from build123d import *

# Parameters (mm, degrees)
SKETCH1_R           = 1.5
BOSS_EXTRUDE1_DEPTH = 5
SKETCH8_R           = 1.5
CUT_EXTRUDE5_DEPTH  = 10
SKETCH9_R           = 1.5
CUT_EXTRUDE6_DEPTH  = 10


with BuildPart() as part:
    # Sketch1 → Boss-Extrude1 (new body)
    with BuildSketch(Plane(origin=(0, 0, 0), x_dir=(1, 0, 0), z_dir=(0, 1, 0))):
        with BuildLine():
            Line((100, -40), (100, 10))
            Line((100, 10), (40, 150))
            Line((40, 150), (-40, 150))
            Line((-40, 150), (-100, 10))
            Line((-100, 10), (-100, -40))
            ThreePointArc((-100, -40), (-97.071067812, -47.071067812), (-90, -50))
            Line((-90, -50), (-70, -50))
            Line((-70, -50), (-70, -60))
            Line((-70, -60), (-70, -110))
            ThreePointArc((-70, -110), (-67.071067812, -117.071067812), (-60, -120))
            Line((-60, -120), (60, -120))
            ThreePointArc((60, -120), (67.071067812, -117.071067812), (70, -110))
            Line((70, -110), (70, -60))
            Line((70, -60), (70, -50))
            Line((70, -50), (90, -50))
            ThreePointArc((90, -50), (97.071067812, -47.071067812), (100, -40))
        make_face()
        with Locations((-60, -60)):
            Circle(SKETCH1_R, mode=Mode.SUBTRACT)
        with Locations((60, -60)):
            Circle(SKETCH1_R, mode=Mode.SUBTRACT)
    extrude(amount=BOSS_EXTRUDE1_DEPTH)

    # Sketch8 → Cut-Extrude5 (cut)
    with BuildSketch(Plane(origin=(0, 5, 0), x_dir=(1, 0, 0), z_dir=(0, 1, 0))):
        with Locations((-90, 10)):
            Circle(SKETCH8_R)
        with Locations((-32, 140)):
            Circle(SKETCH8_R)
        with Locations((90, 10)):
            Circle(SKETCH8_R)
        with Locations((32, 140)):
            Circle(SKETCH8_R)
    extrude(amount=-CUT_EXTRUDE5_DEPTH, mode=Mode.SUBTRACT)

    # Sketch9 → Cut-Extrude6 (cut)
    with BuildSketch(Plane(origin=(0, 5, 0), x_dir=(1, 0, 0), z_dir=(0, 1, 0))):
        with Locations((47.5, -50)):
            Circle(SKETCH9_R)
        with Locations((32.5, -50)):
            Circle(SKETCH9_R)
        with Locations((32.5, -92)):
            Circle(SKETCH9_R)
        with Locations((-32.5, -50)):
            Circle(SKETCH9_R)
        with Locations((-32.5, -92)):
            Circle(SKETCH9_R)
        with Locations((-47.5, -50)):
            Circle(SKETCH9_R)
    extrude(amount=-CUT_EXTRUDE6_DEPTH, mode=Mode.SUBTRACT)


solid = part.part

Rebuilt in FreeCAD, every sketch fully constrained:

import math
import FreeCAD as App
import Part
import Sketcher
Q = App.Units.Quantity

doc = App.newDocument("Part")
body = doc.addObject("PartDesign::Body", "Body")

# Sketch on XZ plane
sketch1 = body.newObject("Sketcher::SketchObject", "Sketch")
sketch1.AttachmentSupport = (doc.getObject("XZ_Plane"), [""])
sketch1.MapMode = "FlatFace"
sketch1.addGeometry(Part.LineSegment(App.Vector(100, 40, 0), App.Vector(100, -10, 0)), False)
sketch1.addGeometry(Part.LineSegment(App.Vector(100, -10, 0), App.Vector(40, -150, 0)), False)
sketch1.addGeometry(Part.LineSegment(App.Vector(40, -150, 0), App.Vector(-40, -150, 0)), False)
sketch1.addGeometry(Part.LineSegment(App.Vector(-40, -150, 0), App.Vector(-100, -10, 0)), False)
sketch1.addGeometry(Part.LineSegment(App.Vector(-100, -10, 0), App.Vector(-100, 40, 0)), False)
sketch1.addGeometry(Part.ArcOfCircle(Part.Circle(App.Vector(-90, 40, 0), App.Vector(0, 0, 1), 10), math.radians(90), math.radians(180)), False)
sketch1.addGeometry(Part.LineSegment(App.Vector(-90, 50, 0), App.Vector(-70, 50, 0)), False)
sketch1.addGeometry(Part.LineSegment(App.Vector(-70, 50, 0), App.Vector(-70, 110, 0)), False)
sketch1.addGeometry(Part.ArcOfCircle(Part.Circle(App.Vector(-60, 110, 0), App.Vector(0, 0, 1), 10), math.radians(90), math.radians(180)), False)
sketch1.addGeometry(Part.LineSegment(App.Vector(-60, 120, 0), App.Vector(60, 120, 0)), False)
sketch1.addGeometry(Part.ArcOfCircle(Part.Circle(App.Vector(60, 110, 0), App.Vector(0, 0, 1), 10), math.radians(0), math.radians(90)), False)
sketch1.addGeometry(Part.LineSegment(App.Vector(70, 110, 0), App.Vector(70, 50, 0)), False)
sketch1.addGeometry(Part.LineSegment(App.Vector(70, 50, 0), App.Vector(90, 50, 0)), False)
sketch1.addGeometry(Part.ArcOfCircle(Part.Circle(App.Vector(90, 40, 0), App.Vector(0, 0, 1), 10), math.radians(0), math.radians(90)), False)
sketch1.addGeometry(Part.Circle(App.Vector(-60, 60, 0), App.Vector(0, 0, 1), 1.5), False)
sketch1.addGeometry(Part.Circle(App.Vector(60, 60, 0), App.Vector(0, 0, 1), 1.5), False)
sketch1.addConstraint(Sketcher.Constraint("Coincident", 0, 2, 1, 1))
sketch1.addConstraint(Sketcher.Constraint("Coincident", 1, 2, 2, 1))
sketch1.addConstraint(Sketcher.Constraint("Coincident", 2, 2, 3, 1))
sketch1.addConstraint(Sketcher.Constraint("Coincident", 3, 2, 4, 1))
sketch1.addConstraint(Sketcher.Constraint("Tangent", 4, 2, 5, 2))
sketch1.addConstraint(Sketcher.Constraint("Tangent", 5, 1, 6, 1))
sketch1.addConstraint(Sketcher.Constraint("Coincident", 6, 2, 7, 1))
sketch1.addConstraint(Sketcher.Constraint("Tangent", 7, 2, 8, 2))
sketch1.addConstraint(Sketcher.Constraint("Tangent", 8, 1, 9, 1))
sketch1.addConstraint(Sketcher.Constraint("Tangent", 9, 2, 10, 2))
sketch1.addConstraint(Sketcher.Constraint("Tangent", 10, 1, 11, 1))
sketch1.addConstraint(Sketcher.Constraint("Coincident", 11, 2, 12, 1))
sketch1.addConstraint(Sketcher.Constraint("Tangent", 12, 2, 13, 2))
sketch1.addConstraint(Sketcher.Constraint("Tangent", 13, 1, 0, 1))
sketch1.addConstraint(Sketcher.Constraint("Vertical", 0))
sketch1.addConstraint(Sketcher.Constraint("Horizontal", 2))
sketch1.addConstraint(Sketcher.Constraint("Vertical", 4))
sketch1.addConstraint(Sketcher.Constraint("Horizontal", 6))
sketch1.addConstraint(Sketcher.Constraint("Vertical", 7))
sketch1.addConstraint(Sketcher.Constraint("Horizontal", 9))
sketch1.addConstraint(Sketcher.Constraint("Vertical", 11))
sketch1.addConstraint(Sketcher.Constraint("Horizontal", 12))
sketch1.addConstraint(Sketcher.Constraint("Equal", 5, 8))
sketch1.addConstraint(Sketcher.Constraint("Equal", 8, 10))
sketch1.addConstraint(Sketcher.Constraint("Equal", 10, 13))
sketch1.addConstraint(Sketcher.Constraint("Equal", 14, 15))
sketch1.addConstraint(Sketcher.Constraint("Symmetric", 5, 3, 13, 3, -2))
sketch1.addConstraint(Sketcher.Constraint("Symmetric", 14, 3, 15, 3, -2))
sketch1.addConstraint(Sketcher.Constraint("Horizontal", 0, 2, 3, 2))
sketch1.addConstraint(Sketcher.Constraint("Vertical", 8, 3, 14, 3))
sketch1.addConstraint(Sketcher.Constraint("Vertical", 10, 3, 15, 3))
sketch1.addConstraint(Sketcher.Constraint("Equal", 1, 3))
sketch1.addConstraint(Sketcher.Constraint("Diameter", 14, Q("3 mm")))
sketch1.addConstraint(Sketcher.Constraint("Radius", 5, Q("10 mm")))
sketch1.addConstraint(Sketcher.Constraint("DistanceX", 2, 2, 2, 1, Q("80 mm")))
sketch1.addConstraint(Sketcher.Constraint("DistanceX", 6, 1, 6, 2, Q("20 mm")))
sketch1.addConstraint(Sketcher.Constraint("DistanceX", 9, 1, 9, 2, Q("120 mm")))
sketch1.addConstraint(Sketcher.Constraint("DistanceY", 0, 2, 0, 1, Q("50 mm")))
sketch1.addConstraint(Sketcher.Constraint("DistanceY", 7, 1, 7, 2, Q("60 mm")))
sketch1.addConstraint(Sketcher.Constraint("DistanceY", -1, 1, 5, 3, Q("40 mm")))
sketch1.addConstraint(Sketcher.Constraint("DistanceY", -1, 1, 14, 3, Q("60 mm")))
sketch1.addConstraint(Sketcher.Constraint("DistanceY", 1, 2, -1, 1, Q("150 mm")))
pad1 = body.newObject("PartDesign::Pad", "Pad")
pad1.Profile = sketch1
pad1.Length = 5
pad1.Reversed = True

# Sketch on XZ plane
sketch2 = body.newObject("Sketcher::SketchObject", "Sketch001")
sketch2.AttachmentSupport = (doc.getObject("XZ_Plane"), [""])
sketch2.MapMode = "FlatFace"
sketch2.AttachmentOffset = App.Placement(App.Vector(0, 0, -5), App.Rotation())
sketch2.addGeometry(Part.Circle(App.Vector(-90, -10, 0), App.Vector(0, 0, 1), 1.5), False)
sketch2.addGeometry(Part.Circle(App.Vector(-32, -140, 0), App.Vector(0, 0, 1), 1.5), False)
sketch2.addGeometry(Part.Circle(App.Vector(90, -10, 0), App.Vector(0, 0, 1), 1.5), False)
sketch2.addGeometry(Part.Circle(App.Vector(32, -140, 0), App.Vector(0, 0, 1), 1.5), False)
sketch2.addConstraint(Sketcher.Constraint("Equal", 0, 1))
sketch2.addConstraint(Sketcher.Constraint("Equal", 1, 2))
sketch2.addConstraint(Sketcher.Constraint("Equal", 2, 3))
sketch2.addConstraint(Sketcher.Constraint("Symmetric", 0, 3, 2, 3, -2))
sketch2.addConstraint(Sketcher.Constraint("Symmetric", 1, 3, 3, 3, -2))
sketch2.addConstraint(Sketcher.Constraint("Diameter", 0, Q("3 mm")))
sketch2.addConstraint(Sketcher.Constraint("DistanceX", 0, 3, -1, 1, Q("90 mm")))
sketch2.addConstraint(Sketcher.Constraint("DistanceY", 0, 3, -1, 1, Q("10 mm")))
sketch2.addConstraint(Sketcher.Constraint("DistanceX", 1, 3, -1, 1, Q("32 mm")))
sketch2.addConstraint(Sketcher.Constraint("DistanceY", 1, 3, -1, 1, Q("140 mm")))
pocket1 = body.newObject("PartDesign::Pocket", "Pocket")
pocket1.Profile = sketch2
pocket1.Length = 10
pocket1.Reversed = True

# Sketch on XZ plane
sketch3 = body.newObject("Sketcher::SketchObject", "Sketch002")
sketch3.AttachmentSupport = (doc.getObject("XZ_Plane"), [""])
sketch3.MapMode = "FlatFace"
sketch3.AttachmentOffset = App.Placement(App.Vector(0, 0, -5), App.Rotation())
sketch3.addGeometry(Part.Circle(App.Vector(47.5, 50, 0), App.Vector(0, 0, 1), 1.5), False)
sketch3.addGeometry(Part.Circle(App.Vector(32.5, 50, 0), App.Vector(0, 0, 1), 1.5), False)
sketch3.addGeometry(Part.Circle(App.Vector(32.5, 92, 0), App.Vector(0, 0, 1), 1.5), False)
sketch3.addGeometry(Part.Circle(App.Vector(-32.5, 50, 0), App.Vector(0, 0, 1), 1.5), False)
sketch3.addGeometry(Part.Circle(App.Vector(-32.5, 92, 0), App.Vector(0, 0, 1), 1.5), False)
sketch3.addGeometry(Part.Circle(App.Vector(-47.5, 50, 0), App.Vector(0, 0, 1), 1.5), False)
sketch3.addConstraint(Sketcher.Constraint("Equal", 0, 1))
sketch3.addConstraint(Sketcher.Constraint("Equal", 1, 2))
sketch3.addConstraint(Sketcher.Constraint("Equal", 2, 3))
sketch3.addConstraint(Sketcher.Constraint("Equal", 3, 4))
sketch3.addConstraint(Sketcher.Constraint("Equal", 4, 5))
sketch3.addConstraint(Sketcher.Constraint("Symmetric", 1, 3, 3, 3, -2))
sketch3.addConstraint(Sketcher.Constraint("Symmetric", 2, 3, 4, 3, -2))
sketch3.addConstraint(Sketcher.Constraint("Symmetric", 0, 3, 5, 3, -2))
sketch3.addConstraint(Sketcher.Constraint("Horizontal", 0, 3, 1, 3))
sketch3.addConstraint(Sketcher.Constraint("Vertical", 1, 3, 2, 3))
sketch3.addConstraint(Sketcher.Constraint("Diameter", 0, Q("3 mm")))
sketch3.addConstraint(Sketcher.Constraint("DistanceY", -1, 1, 0, 3, Q("50 mm")))
sketch3.addConstraint(Sketcher.Constraint("DistanceY", -1, 1, 2, 3, Q("92 mm")))
sketch3.addConstraint(Sketcher.Constraint("DistanceX", 1, 3, 0, 3, Q("15 mm")))
sketch3.addConstraint(Sketcher.Constraint("DistanceX", 3, 3, 1, 3, Q("65 mm")))
pocket2 = body.newObject("PartDesign::Pocket", "Pocket001")
pocket2.Profile = sketch3
pocket2.Length = 10
pocket2.Reversed = True

doc.recompute()
